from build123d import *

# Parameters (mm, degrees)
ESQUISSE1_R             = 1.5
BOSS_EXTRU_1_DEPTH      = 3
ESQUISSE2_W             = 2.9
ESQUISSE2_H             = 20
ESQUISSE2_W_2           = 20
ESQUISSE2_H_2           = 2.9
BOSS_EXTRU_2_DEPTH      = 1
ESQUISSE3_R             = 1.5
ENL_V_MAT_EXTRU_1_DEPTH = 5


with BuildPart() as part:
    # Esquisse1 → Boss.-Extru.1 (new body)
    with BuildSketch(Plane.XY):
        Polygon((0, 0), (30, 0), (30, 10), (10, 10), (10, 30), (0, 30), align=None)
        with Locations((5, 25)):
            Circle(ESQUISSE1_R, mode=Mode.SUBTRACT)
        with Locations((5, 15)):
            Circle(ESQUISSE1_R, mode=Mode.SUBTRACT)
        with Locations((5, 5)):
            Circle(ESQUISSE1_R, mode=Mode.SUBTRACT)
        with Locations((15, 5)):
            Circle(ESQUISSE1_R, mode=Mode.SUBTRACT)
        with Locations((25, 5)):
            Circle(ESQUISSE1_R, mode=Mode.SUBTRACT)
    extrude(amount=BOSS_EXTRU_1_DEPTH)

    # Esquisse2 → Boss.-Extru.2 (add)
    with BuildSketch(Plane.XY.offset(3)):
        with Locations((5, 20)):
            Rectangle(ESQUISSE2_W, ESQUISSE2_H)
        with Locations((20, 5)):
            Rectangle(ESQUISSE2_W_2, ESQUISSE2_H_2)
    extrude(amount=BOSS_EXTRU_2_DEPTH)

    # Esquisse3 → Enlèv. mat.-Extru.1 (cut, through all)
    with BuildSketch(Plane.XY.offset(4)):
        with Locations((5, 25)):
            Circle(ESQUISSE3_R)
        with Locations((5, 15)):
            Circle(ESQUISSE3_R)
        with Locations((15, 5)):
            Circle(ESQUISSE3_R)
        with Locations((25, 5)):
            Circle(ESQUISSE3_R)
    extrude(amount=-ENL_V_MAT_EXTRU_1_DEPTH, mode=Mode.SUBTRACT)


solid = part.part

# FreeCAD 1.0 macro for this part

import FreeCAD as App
import Part
import Sketcher

V = App.Vector
Q = App.Units.Quantity

doc = App.newDocument("Part")
body = doc.addObject("PartDesign::Body", "Body")

sketch1 = body.newObject("Sketcher::SketchObject", "Sketch")
sketch1.AttachmentSupport = (doc.getObject("XY_Plane"), [""])
sketch1.MapMode = "FlatFace"
sketch1.addGeometry(Part.LineSegment(V(0, 0, 0), V(30, 0, 0)), False)
sketch1.addGeometry(Part.LineSegment(V(30, 0, 0), V(30, 10, 0)), False)
sketch1.addGeometry(Part.LineSegment(V(30, 10, 0), V(10, 10, 0)), False)
sketch1.addGeometry(Part.LineSegment(V(10, 10, 0), V(10, 30, 0)), False)
sketch1.addGeometry(Part.LineSegment(V(10, 30, 0), V(0, 30, 0)), False)
sketch1.addGeometry(Part.LineSegment(V(0, 30, 0), V(0, 0, 0)), False)
sketch1.addGeometry(Part.Circle(V(5, 5, 0), V(0, 0, 1), 1.5), False)
sketch1.addGeometry(Part.Circle(V(15, 5, 0), V(0, 0, 1), 1.5), False)
sketch1.addGeometry(Part.Circle(V(25, 5, 0), V(0, 0, 1), 1.5), False)
sketch1.addGeometry(Part.Circle(V(5, 15, 0), V(0, 0, 1), 1.5), False)
sketch1.addGeometry(Part.Circle(V(5, 25, 0), V(0, 0, 1), 1.5), False)
sketch1.addConstraint(Sketcher.Constraint("Coincident", 0, 2, 1, 1))
sketch1.addConstraint(Sketcher.Constraint("Coincident", 1, 2, 2, 1))
sketch1.addConstraint(Sketcher.Constraint("Coincident", 2, 2, 3, 1))
sketch1.addConstraint(Sketcher.Constraint("Coincident", 3, 2, 4, 1))
sketch1.addConstraint(Sketcher.Constraint("Coincident", 4, 2, 5, 1))
sketch1.addConstraint(Sketcher.Constraint("Coincident", 5, 2, 0, 1))
sketch1.addConstraint(Sketcher.Constraint("Horizontal", 0))
sketch1.addConstraint(Sketcher.Constraint("Vertical", 1))
sketch1.addConstraint(Sketcher.Constraint("Horizontal", 2))
sketch1.addConstraint(Sketcher.Constraint("Vertical", 3))
sketch1.addConstraint(Sketcher.Constraint("Horizontal", 4))
sketch1.addConstraint(Sketcher.Constraint("Vertical", 5))
sketch1.addConstraint(Sketcher.Constraint("Coincident", 5, 2, -1, 1))
sketch1.addConstraint(Sketcher.Constraint("Equal", 6, 7))
sketch1.addConstraint(Sketcher.Constraint("Equal", 7, 8))
sketch1.addConstraint(Sketcher.Constraint("Equal", 8, 9))
sketch1.addConstraint(Sketcher.Constraint("Equal", 9, 10))
sketch1.addConstraint(Sketcher.Constraint("Horizontal", 6, 3, 7, 3))
sketch1.addConstraint(Sketcher.Constraint("Horizontal", 7, 3, 8, 3))
sketch1.addConstraint(Sketcher.Constraint("Vertical", 6, 3, 9, 3))
sketch1.addConstraint(Sketcher.Constraint("Vertical", 9, 3, 10, 3))
sketch1.addConstraint(Sketcher.Constraint("Equal", 4, 1))
sketch1.addConstraint(Sketcher.Constraint("Equal", 2, 3))
sketch1.addConstraint(Sketcher.Constraint("Diameter", 6, Q("3 mm")))
sketch1.addConstraint(Sketcher.Constraint("DistanceX", 0, 1, 0, 2, Q("30 mm")))
sketch1.addConstraint(Sketcher.Constraint("DistanceX", 2, 2, 2, 1, Q("20 mm")))
sketch1.addConstraint(Sketcher.Constraint("DistanceX", -1, 1, 6, 3, Q("5 mm")))
sketch1.addConstraint(Sketcher.Constraint("DistanceY", -1, 1, 6, 3, Q("5 mm")))
sketch1.addConstraint(Sketcher.Constraint("DistanceX", -1, 1, 7, 3, Q("15 mm")))
sketch1.addConstraint(Sketcher.Constraint("DistanceX", -1, 1, 8, 3, Q("25 mm")))
sketch1.addConstraint(Sketcher.Constraint("DistanceY", -1, 1, 9, 3, Q("15 mm")))
sketch1.addConstraint(Sketcher.Constraint("DistanceY", -1, 1, 10, 3, Q("25 mm")))
pad1 = body.newObject("PartDesign::Pad", "Pad")
pad1.Profile = sketch1
pad1.Length = 3

sketch2 = body.newObject("Sketcher::SketchObject", "Sketch001")
sketch2.AttachmentSupport = (doc.getObject("XY_Plane"), [""])
sketch2.MapMode = "FlatFace"
sketch2.AttachmentOffset = App.Placement(V(0, 0, 3), App.Rotation())
sketch2.addGeometry(Part.LineSegment(V(3.55, 30, 0), V(3.55, 10, 0)), False)
sketch2.addGeometry(Part.LineSegment(V(3.55, 10, 0), V(6.45, 10, 0)), False)
sketch2.addGeometry(Part.LineSegment(V(6.45, 10, 0), V(6.45, 30, 0)), False)
sketch2.addGeometry(Part.LineSegment(V(6.45, 30, 0), V(3.55, 30, 0)), False)
sketch2.addGeometry(Part.LineSegment(V(10, 6.45, 0), V(10, 3.55, 0)), False)
sketch2.addGeometry(Part.LineSegment(V(10, 3.55, 0), V(30, 3.55, 0)), False)
sketch2.addGeometry(Part.LineSegment(V(30, 3.55, 0), V(30, 6.45, 0)), False)
sketch2.addGeometry(Part.LineSegment(V(30, 6.45, 0), V(10, 6.45, 0)), False)
sketch2.addConstraint(Sketcher.Constraint("Coincident", 0, 2, 1, 1))
sketch2.addConstraint(Sketcher.Constraint("Coincident", 1, 2, 2, 1))
sketch2.addConstraint(Sketcher.Constraint("Coincident", 2, 2, 3, 1))
sketch2.addConstraint(Sketcher.Constraint("Coincident", 3, 2, 0, 1))
sketch2.addConstraint(Sketcher.Constraint("Coincident", 4, 2, 5, 1))
sketch2.addConstraint(Sketcher.Constraint("Coincident", 5, 2, 6, 1))
sketch2.addConstraint(Sketcher.Constraint("Coincident", 6, 2, 7, 1))
sketch2.addConstraint(Sketcher.Constraint("Coincident", 7, 2, 4, 1))
sketch2.addConstraint(Sketcher.Constraint("Vertical", 0))
sketch2.addConstraint(Sketcher.Constraint("Horizontal", 1))
sketch2.addConstraint(Sketcher.Constraint("Vertical", 2))
sketch2.addConstraint(Sketcher.Constraint("Horizontal", 3))
sketch2.addConstraint(Sketcher.Constraint("Vertical", 4))
sketch2.addConstraint(Sketcher.Constraint("Horizontal", 5))
sketch2.addConstraint(Sketcher.Constraint("Vertical", 6))
sketch2.addConstraint(Sketcher.Constraint("Horizontal", 7))
sketch2.addConstraint(Sketcher.Constraint("Equal", 7, 0))
sketch2.addConstraint(Sketcher.Constraint("Equal", 3, 4))
sketch2.addConstraint(Sketcher.Constraint("DistanceX", 5, 1, 5, 2, Q("20 mm")))
sketch2.addConstraint(Sketcher.Constraint("DistanceX", 1, 1, 1, 2, Q("2.9 mm")))
sketch2.addConstraint(Sketcher.Constraint("DistanceY", -1, 1, 0, 2, Q("10 mm")))
sketch2.addConstraint(Sketcher.Constraint("DistanceX", -1, 1, 4, 2, Q("10 mm")))
sketch2.addConstraint(Sketcher.Constraint("DistanceX", -1, 1, 0, 2, Q("3.55 mm")))
sketch2.addConstraint(Sketcher.Constraint("DistanceY", -1, 1, 4, 2, Q("3.55 mm")))
pad2 = body.newObject("PartDesign::Pad", "Pad001")
pad2.Profile = sketch2
pad2.Length = 1

sketch3 = body.newObject("Sketcher::SketchObject", "Sketch002")
sketch3.AttachmentSupport = (doc.getObject("XY_Plane"), [""])
sketch3.MapMode = "FlatFace"
sketch3.AttachmentOffset = App.Placement(V(0, 0, 4), App.Rotation())
sketch3.addGeometry(Part.Circle(V(5, 25, 0), V(0, 0, 1), 1.5), False)
sketch3.addGeometry(Part.Circle(V(5, 15, 0), V(0, 0, 1), 1.5), False)
sketch3.addGeometry(Part.Circle(V(15, 5, 0), V(0, 0, 1), 1.5), False)
sketch3.addGeometry(Part.Circle(V(25, 5, 0), V(0, 0, 1), 1.5), False)
sketch3.addConstraint(Sketcher.Constraint("Equal", 0, 1))
sketch3.addConstraint(Sketcher.Constraint("Equal", 1, 2))
sketch3.addConstraint(Sketcher.Constraint("Equal", 2, 3))
sketch3.addConstraint(Sketcher.Constraint("Horizontal", 2, 3, 3, 3))
sketch3.addConstraint(Sketcher.Constraint("Vertical", 0, 3, 1, 3))
sketch3.addConstraint(Sketcher.Constraint("Diameter", 0, Q("3 mm")))
sketch3.addConstraint(Sketcher.Constraint("DistanceX", -1, 1, 0, 3, Q("5 mm")))
sketch3.addConstraint(Sketcher.Constraint("DistanceY", -1, 1, 0, 3, Q("25 mm")))
sketch3.addConstraint(Sketcher.Constraint("DistanceY", -1, 1, 1, 3, Q("15 mm")))
sketch3.addConstraint(Sketcher.Constraint("DistanceX", -1, 1, 2, 3, Q("15 mm")))
sketch3.addConstraint(Sketcher.Constraint("DistanceY", -1, 1, 2, 3, Q("5 mm")))
sketch3.addConstraint(Sketcher.Constraint("DistanceX", -1, 1, 3, 3, Q("25 mm")))
pocket1 = body.newObject("PartDesign::Pocket", "Pocket")
pocket1.Profile = sketch3
pocket1.Type = "ThroughAll"

doc.recompute()
